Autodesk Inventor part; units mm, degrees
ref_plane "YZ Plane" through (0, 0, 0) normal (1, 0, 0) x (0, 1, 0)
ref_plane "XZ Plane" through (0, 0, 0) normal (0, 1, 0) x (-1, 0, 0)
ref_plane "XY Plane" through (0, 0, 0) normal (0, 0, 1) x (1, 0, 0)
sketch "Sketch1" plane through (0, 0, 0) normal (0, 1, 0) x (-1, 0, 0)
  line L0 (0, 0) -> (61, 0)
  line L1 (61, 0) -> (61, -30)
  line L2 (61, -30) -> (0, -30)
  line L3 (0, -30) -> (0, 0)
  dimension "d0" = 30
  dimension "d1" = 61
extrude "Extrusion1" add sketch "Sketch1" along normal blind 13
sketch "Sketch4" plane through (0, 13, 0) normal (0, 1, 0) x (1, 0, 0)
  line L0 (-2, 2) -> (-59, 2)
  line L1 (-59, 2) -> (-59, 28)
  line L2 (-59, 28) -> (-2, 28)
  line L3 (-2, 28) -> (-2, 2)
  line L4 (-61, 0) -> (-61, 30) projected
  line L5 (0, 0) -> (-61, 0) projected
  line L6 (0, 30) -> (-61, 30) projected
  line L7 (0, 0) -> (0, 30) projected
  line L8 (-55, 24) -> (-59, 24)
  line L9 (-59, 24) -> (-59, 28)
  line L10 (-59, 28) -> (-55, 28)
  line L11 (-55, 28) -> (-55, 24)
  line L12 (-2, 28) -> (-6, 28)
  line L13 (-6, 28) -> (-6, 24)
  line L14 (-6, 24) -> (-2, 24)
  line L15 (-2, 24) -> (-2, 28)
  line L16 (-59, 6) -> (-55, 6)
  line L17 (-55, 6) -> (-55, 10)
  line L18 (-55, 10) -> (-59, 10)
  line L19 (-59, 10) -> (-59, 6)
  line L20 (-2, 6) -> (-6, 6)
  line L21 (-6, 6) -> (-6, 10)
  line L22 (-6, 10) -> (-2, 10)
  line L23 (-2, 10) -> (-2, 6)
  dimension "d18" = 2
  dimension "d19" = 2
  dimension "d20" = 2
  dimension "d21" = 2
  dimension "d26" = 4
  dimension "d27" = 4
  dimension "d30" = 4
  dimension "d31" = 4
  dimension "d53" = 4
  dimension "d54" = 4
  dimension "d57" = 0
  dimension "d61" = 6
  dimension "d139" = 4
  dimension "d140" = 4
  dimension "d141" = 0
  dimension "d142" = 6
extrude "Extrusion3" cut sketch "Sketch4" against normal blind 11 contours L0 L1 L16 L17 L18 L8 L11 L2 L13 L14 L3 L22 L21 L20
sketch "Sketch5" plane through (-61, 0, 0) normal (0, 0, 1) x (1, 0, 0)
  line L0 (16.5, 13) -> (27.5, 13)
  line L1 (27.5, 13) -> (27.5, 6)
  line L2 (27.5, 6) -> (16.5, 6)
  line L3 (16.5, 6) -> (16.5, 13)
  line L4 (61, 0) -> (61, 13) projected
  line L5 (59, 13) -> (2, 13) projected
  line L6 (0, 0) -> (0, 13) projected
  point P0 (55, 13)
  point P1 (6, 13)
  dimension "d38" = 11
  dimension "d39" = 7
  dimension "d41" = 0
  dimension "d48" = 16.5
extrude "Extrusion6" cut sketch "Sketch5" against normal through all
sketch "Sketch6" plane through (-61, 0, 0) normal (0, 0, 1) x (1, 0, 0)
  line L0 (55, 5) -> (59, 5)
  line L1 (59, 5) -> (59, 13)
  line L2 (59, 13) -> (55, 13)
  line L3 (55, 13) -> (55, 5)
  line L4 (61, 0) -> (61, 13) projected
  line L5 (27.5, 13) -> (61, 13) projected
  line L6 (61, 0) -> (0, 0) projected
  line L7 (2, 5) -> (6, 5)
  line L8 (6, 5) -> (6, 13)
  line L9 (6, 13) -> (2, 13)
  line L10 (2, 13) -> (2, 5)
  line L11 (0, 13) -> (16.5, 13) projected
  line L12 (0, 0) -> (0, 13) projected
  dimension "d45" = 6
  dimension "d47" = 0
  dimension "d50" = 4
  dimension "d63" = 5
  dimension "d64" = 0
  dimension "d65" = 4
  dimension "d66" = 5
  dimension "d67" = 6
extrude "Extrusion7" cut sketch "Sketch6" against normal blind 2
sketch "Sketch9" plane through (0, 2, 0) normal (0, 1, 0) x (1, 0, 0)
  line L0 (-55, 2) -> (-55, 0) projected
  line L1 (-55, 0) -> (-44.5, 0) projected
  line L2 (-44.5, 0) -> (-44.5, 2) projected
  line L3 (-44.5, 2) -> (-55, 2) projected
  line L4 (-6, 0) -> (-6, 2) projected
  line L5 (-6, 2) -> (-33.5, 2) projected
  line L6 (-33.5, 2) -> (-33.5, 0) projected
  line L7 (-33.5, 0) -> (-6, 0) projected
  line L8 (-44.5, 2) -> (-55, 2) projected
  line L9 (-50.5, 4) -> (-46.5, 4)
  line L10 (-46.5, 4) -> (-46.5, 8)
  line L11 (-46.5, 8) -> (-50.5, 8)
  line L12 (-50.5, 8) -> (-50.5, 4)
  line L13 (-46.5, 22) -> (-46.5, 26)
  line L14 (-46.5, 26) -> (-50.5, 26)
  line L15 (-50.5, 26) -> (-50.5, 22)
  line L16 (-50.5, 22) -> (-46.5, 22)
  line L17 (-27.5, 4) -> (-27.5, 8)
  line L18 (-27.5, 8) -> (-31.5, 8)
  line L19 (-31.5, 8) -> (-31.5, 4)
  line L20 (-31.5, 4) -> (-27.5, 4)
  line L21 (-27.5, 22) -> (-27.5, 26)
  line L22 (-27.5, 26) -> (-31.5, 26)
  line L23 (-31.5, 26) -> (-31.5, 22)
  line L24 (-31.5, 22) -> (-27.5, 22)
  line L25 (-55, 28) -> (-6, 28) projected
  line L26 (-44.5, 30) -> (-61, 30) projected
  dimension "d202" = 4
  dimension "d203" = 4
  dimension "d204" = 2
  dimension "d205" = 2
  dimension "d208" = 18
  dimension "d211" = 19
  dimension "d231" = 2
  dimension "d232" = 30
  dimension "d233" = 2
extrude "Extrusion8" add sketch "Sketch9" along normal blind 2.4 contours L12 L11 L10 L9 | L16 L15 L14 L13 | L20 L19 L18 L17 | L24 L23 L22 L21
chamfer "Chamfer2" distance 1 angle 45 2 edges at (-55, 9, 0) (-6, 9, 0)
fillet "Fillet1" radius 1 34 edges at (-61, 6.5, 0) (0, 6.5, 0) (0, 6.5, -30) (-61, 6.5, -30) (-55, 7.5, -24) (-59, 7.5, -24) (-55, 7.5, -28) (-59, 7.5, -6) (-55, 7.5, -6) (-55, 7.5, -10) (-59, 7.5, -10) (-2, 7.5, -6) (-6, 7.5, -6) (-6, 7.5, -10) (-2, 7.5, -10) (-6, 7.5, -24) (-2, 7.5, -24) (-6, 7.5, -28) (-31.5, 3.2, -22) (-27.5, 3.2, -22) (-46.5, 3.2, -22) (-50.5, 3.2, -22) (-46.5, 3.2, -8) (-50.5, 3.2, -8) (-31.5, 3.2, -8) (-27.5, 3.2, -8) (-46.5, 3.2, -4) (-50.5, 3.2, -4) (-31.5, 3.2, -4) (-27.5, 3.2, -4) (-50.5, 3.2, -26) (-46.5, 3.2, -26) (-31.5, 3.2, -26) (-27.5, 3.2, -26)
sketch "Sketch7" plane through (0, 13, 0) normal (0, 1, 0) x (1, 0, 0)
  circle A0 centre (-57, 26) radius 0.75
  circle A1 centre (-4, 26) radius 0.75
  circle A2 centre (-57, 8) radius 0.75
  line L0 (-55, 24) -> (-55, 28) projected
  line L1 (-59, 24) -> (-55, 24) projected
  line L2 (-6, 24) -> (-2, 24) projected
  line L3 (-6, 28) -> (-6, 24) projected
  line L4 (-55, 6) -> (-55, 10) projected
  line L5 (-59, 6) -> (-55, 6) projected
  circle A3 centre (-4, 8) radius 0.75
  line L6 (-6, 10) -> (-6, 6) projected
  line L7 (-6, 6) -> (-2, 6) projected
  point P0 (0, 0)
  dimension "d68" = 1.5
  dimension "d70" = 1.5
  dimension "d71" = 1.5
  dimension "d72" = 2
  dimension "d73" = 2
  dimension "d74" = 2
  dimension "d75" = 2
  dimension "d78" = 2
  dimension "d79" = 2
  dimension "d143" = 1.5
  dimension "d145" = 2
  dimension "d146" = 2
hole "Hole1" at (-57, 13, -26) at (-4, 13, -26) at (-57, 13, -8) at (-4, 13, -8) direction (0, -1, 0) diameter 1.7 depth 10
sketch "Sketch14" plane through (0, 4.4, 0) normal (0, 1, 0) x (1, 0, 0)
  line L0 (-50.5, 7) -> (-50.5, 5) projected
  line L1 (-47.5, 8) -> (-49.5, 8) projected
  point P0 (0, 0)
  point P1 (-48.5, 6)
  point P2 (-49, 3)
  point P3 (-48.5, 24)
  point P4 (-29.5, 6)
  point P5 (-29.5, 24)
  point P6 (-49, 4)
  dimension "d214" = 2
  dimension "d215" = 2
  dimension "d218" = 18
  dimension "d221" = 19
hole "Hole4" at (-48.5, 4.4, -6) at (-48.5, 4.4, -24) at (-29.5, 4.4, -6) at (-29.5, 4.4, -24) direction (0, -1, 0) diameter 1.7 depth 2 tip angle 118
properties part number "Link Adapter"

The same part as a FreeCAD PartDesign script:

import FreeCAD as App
import Part
import Sketcher
Q = App.Units.Quantity


def edges_at(feature, points):
    """Names of the edges that pass closest to the given points."""
    edges = feature.Shape.Edges
    near = lambda p: min(range(len(edges)), key=lambda i: edges[i].distToShape(Part.Vertex(*p))[0])
    return sorted({f"Edge{near(p) + 1}" for p in points})


def add_polygon(sketch, points):
    """Adds a closed chain of lines whose ends are joined by coincident constraints."""
    first, n = sketch.GeometryCount, len(points)
    for a, b in zip(points, points[1:] + points[:1]):
        sketch.addGeometry(Part.LineSegment(App.Vector(*a, 0), App.Vector(*b, 0)), False)
    for i in range(n):
        sketch.addConstraint(Sketcher.Constraint("Coincident", first + i, 2, first + (i + 1) % n, 1))

doc = App.newDocument("Part")
body = doc.addObject("PartDesign::Body", "Body")

# Sketch on XZ plane
sketch1 = body.newObject("Sketcher::SketchObject", "Sketch")
sketch1.AttachmentSupport = (doc.getObject("XZ_Plane"), [""])
sketch1.MapMode = "FlatFace"
add_polygon(sketch1, [(-61, 0), (0, 0), (0, -30), (-61, -30)])  # lines 0-3
sketch1.addConstraint(Sketcher.Constraint("Horizontal", 0))
sketch1.addConstraint(Sketcher.Constraint("Vertical", 1))
sketch1.addConstraint(Sketcher.Constraint("Horizontal", 2))
sketch1.addConstraint(Sketcher.Constraint("Vertical", 3))
sketch1.addConstraint(Sketcher.Constraint("Coincident", 0, 2, -1, 1))
sketch1.addConstraint(Sketcher.Constraint("DistanceX", 0, 1, 0, 2, Q("61 mm")))
sketch1.addConstraint(Sketcher.Constraint("DistanceY", 1, 2, 1, 1, Q("30 mm")))
pad1 = body.newObject("PartDesign::Pad", "Pad")
pad1.Profile = sketch1
pad1.Length = 13
pad1.Reversed = True

# Sketch on XZ plane
sketch2 = body.newObject("Sketcher::SketchObject", "Sketch001")
sketch2.AttachmentSupport = (doc.getObject("XZ_Plane"), [""])
sketch2.MapMode = "FlatFace"
sketch2.AttachmentOffset = App.Placement(App.Vector(0, 0, -13), App.Rotation())
add_polygon(sketch2, [(-59, -2), (-2, -2), (-2, -6), (-6, -6), (-6, -10), (-2, -10), (-2, -24), (-6, -24), (-6, -28), (-55, -28), (-55, -24), (-59, -24), (-59, -10), (-55, -10), (-55, -6), (-59, -6)])  # lines 0-15
sketch2.addConstraint(Sketcher.Constraint("Horizontal", 0))
sketch2.addConstraint(Sketcher.Constraint("Vertical", 1))
sketch2.addConstraint(Sketcher.Constraint("Horizontal", 2))
sketch2.addConstraint(Sketcher.Constraint("Vertical", 3))
sketch2.addConstraint(Sketcher.Constraint("Horizontal", 4))
sketch2.addConstraint(Sketcher.Constraint("Vertical", 5))
sketch2.addConstraint(Sketcher.Constraint("Horizontal", 6))
sketch2.addConstraint(Sketcher.Constraint("Vertical", 7))
sketch2.addConstraint(Sketcher.Constraint("Horizontal", 8))
sketch2.addConstraint(Sketcher.Constraint("Vertical", 9))
sketch2.addConstraint(Sketcher.Constraint("Horizontal", 10))
sketch2.addConstraint(Sketcher.Constraint("Vertical", 11))
sketch2.addConstraint(Sketcher.Constraint("Horizontal", 12))
sketch2.addConstraint(Sketcher.Constraint("Vertical", 13))
sketch2.addConstraint(Sketcher.Constraint("Horizontal", 14))
sketch2.addConstraint(Sketcher.Constraint("Vertical", 15))
sketch2.addConstraint(Sketcher.Constraint("Horizontal", 6, 2, 9, 2))
sketch2.addConstraint(Sketcher.Constraint("Horizontal", 4, 2, 11, 2))
sketch2.addConstraint(Sketcher.Constraint("Horizontal", 2, 2, 13, 2))
sketch2.addConstraint(Sketcher.Constraint("Vertical", 1, 2, 4, 2))
sketch2.addConstraint(Sketcher.Constraint("Vertical", 3, 2, 6, 2))
sketch2.addConstraint(Sketcher.Constraint("Vertical", 9, 2, 12, 2))
sketch2.addConstraint(Sketcher.Constraint("Vertical", 11, 2, 14, 2))
sketch2.addConstraint(Sketcher.Constraint("Equal", 6, 10))
sketch2.addConstraint(Sketcher.Constraint("Equal", 14, 1))
sketch2.addConstraint(Sketcher.Constraint("Equal", 1, 3))
sketch2.addConstraint(Sketcher.Constraint("Equal", 3, 7))
sketch2.addConstraint(Sketcher.Constraint("DistanceX", 2, 2, 2, 1, Q("4 mm")))
sketch2.addConstraint(Sketcher.Constraint("DistanceX", 0, 2, -1, 1, Q("2 mm")))
sketch2.addConstraint(Sketcher.Constraint("DistanceY", 0, 2, -1, 1, Q("2 mm")))
sketch2.addConstraint(Sketcher.Constraint("DistanceX", 0, 1, 0, 2, Q("57 mm")))
sketch2.addConstraint(Sketcher.Constraint("DistanceY", 5, 2, 5, 1, Q("14 mm")))
pocket1 = body.newObject("PartDesign::Pocket", "Pocket")
pocket1.Profile = sketch2
pocket1.Length = 11
pocket1.Reversed = True

# Sketch on XY plane
sketch3 = body.newObject("Sketcher::SketchObject", "Sketch002")
sketch3.AttachmentSupport = (doc.getObject("XY_Plane"), [""])
sketch3.MapMode = "FlatFace"
add_polygon(sketch3, [(-33.5, 13), (-44.5, 13), (-44.5, 6), (-33.5, 6)])  # lines 0-3
sketch3.addConstraint(Sketcher.Constraint("Horizontal", 0))
sketch3.addConstraint(Sketcher.Constraint("Vertical", 1))
sketch3.addConstraint(Sketcher.Constraint("Horizontal", 2))
sketch3.addConstraint(Sketcher.Constraint("Vertical", 3))
sketch3.addConstraint(Sketcher.Constraint("DistanceX", 0, 2, 0, 1, Q("11 mm")))
sketch3.addConstraint(Sketcher.Constraint("DistanceY", 1, 2, 1, 1, Q("7 mm")))
sketch3.addConstraint(Sketcher.Constraint("DistanceY", -1, 1, 0, 2, Q("13 mm")))
sketch3.addConstraint(Sketcher.Constraint("DistanceX", 0, 2, -1, 1, Q("44.5 mm")))
pocket2 = body.newObject("PartDesign::Pocket", "Pocket001")
pocket2.Profile = sketch3
pocket2.Type = "ThroughAll"

# Sketch on XY plane
sketch4 = body.newObject("Sketcher::SketchObject", "Sketch003")
sketch4.AttachmentSupport = (doc.getObject("XY_Plane"), [""])
sketch4.MapMode = "FlatFace"
add_polygon(sketch4, [(-6, 13), (-6, 5), (-2, 5), (-2, 13)])  # lines 0-3
add_polygon(sketch4, [(-55, 13), (-59, 13), (-59, 5), (-55, 5)])  # lines 4-7
sketch4.addConstraint(Sketcher.Constraint("Vertical", 0))
sketch4.addConstraint(Sketcher.Constraint("Horizontal", 1))
sketch4.addConstraint(Sketcher.Constraint("Vertical", 2))
sketch4.addConstraint(Sketcher.Constraint("Horizontal", 3))
sketch4.addConstraint(Sketcher.Constraint("Horizontal", 4))
sketch4.addConstraint(Sketcher.Constraint("Vertical", 5))
sketch4.addConstraint(Sketcher.Constraint("Horizontal", 6))
sketch4.addConstraint(Sketcher.Constraint("Vertical", 7))
sketch4.addConstraint(Sketcher.Constraint("Horizontal", 3, 2, 4, 2))
sketch4.addConstraint(Sketcher.Constraint("Horizontal", 1, 2, 5, 2))
sketch4.addConstraint(Sketcher.Constraint("Equal", 3, 4))
sketch4.addConstraint(Sketcher.Constraint("DistanceX", 1, 1, 1, 2, Q("4 mm")))
sketch4.addConstraint(Sketcher.Constraint("DistanceX", 0, 2, -1, 1, Q("6 mm")))
sketch4.addConstraint(Sketcher.Constraint("DistanceY", -1, 1, 0, 2, Q("5 mm")))
sketch4.addConstraint(Sketcher.Constraint("DistanceY", 0, 2, 0, 1, Q("8 mm")))
sketch4.addConstraint(Sketcher.Constraint("DistanceX", 4, 2, -1, 1, Q("59 mm")))
pocket3 = body.newObject("PartDesign::Pocket", "Pocket002")
pocket3.Profile = sketch4
pocket3.Length = 2

# Sketch on XZ plane
sketch5 = body.newObject("Sketcher::SketchObject", "Sketch004")
sketch5.AttachmentSupport = (doc.getObject("XZ_Plane"), [""])
sketch5.MapMode = "FlatFace"
sketch5.AttachmentOffset = App.Placement(App.Vector(0, 0, -2), App.Rotation())
add_polygon(sketch5, [(-50.5, -8), (-50.5, -4), (-46.5, -4), (-46.5, -8)])  # lines 0-3
add_polygon(sketch5, [(-50.5, -22), (-46.5, -22), (-46.5, -26), (-50.5, -26)])  # lines 4-7
add_polygon(sketch5, [(-31.5, -4), (-27.5, -4), (-27.5, -8), (-31.5, -8)])  # lines 8-11
add_polygon(sketch5, [(-31.5, -22), (-27.5, -22), (-27.5, -26), (-31.5, -26)])  # lines 12-15
sketch5.addConstraint(Sketcher.Constraint("Vertical", 0))
sketch5.addConstraint(Sketcher.Constraint("Horizontal", 1))
sketch5.addConstraint(Sketcher.Constraint("Vertical", 2))
sketch5.addConstraint(Sketcher.Constraint("Horizontal", 3))
sketch5.addConstraint(Sketcher.Constraint("Horizontal", 4))
sketch5.addConstraint(Sketcher.Constraint("Vertical", 5))
sketch5.addConstraint(Sketcher.Constraint("Horizontal", 6))
sketch5.addConstraint(Sketcher.Constraint("Vertical", 7))
sketch5.addConstraint(Sketcher.Constraint("Horizontal", 8))
sketch5.addConstraint(Sketcher.Constraint("Vertical", 9))
sketch5.addConstraint(Sketcher.Constraint("Horizontal", 10))
sketch5.addConstraint(Sketcher.Constraint("Vertical", 11))
sketch5.addConstraint(Sketcher.Constraint("Horizontal", 12))
sketch5.addConstraint(Sketcher.Constraint("Vertical", 13))
sketch5.addConstraint(Sketcher.Constraint("Horizontal", 14))
sketch5.addConstraint(Sketcher.Constraint("Vertical", 15))
sketch5.addConstraint(Sketcher.Constraint("Horizontal", 1, 2, 8, 2))
sketch5.addConstraint(Sketcher.Constraint("Horizontal", 3, 2, 9, 2))
sketch5.addConstraint(Sketcher.Constraint("Horizontal", 7, 2, 12, 2))
sketch5.addConstraint(Sketcher.Constraint("Horizontal", 6, 2, 13, 2))
sketch5.addConstraint(Sketcher.Constraint("Vertical", 2, 2, 4, 2))
sketch5.addConstraint(Sketcher.Constraint("Vertical", 3, 2, 6, 2))
sketch5.addConstraint(Sketcher.Constraint("Vertical", 9, 2, 12, 2))
sketch5.addConstraint(Sketcher.Constraint("Vertical", 11, 2, 14, 2))
sketch5.addConstraint(Sketcher.Constraint("Equal", 6, 8))
sketch5.addConstraint(Sketcher.Constraint("Equal", 14, 0))
sketch5.addConstraint(Sketcher.Constraint("Equal", 2, 5))
sketch5.addConstraint(Sketcher.Constraint("DistanceX", 1, 1, 1, 2, Q("4 mm")))
sketch5.addConstraint(Sketcher.Constraint("DistanceY", 0, 2, -1, 1, Q("4 mm")))
sketch5.addConstraint(Sketcher.Constraint("DistanceY", 4, 2, 1, 2, Q("18 mm")))
sketch5.addConstraint(Sketcher.Constraint("DistanceX", 1, 2, 8, 2, Q("19 mm")))
sketch5.addConstraint(Sketcher.Constraint("DistanceX", 0, 2, -1, 1, Q("50.5 mm")))
pad2 = body.newObject("PartDesign::Pad", "Pad001")
pad2.Profile = sketch5
pad2.Length = 2.4
pad2.Reversed = True
doc.recompute()

chamfer = body.newObject("PartDesign::Chamfer", "Chamfer")
chamfer.Base = (pad2, edges_at(pad2, [(-55, 9, 0), (-6, 9, 0)]))
chamfer.Size = 1
doc.recompute()

fillet = body.newObject("PartDesign::Fillet", "Fillet")
fillet.Base = (chamfer, edges_at(chamfer, [
    (-61, 6.5, 0),
    (0, 6.5, 0),
    (0, 6.5, -30),
    (-61, 6.5, -30),
    (-55, 7.5, -24),
    (-59, 7.5, -24),
    (-55, 7.5, -28),
    (-59, 7.5, -6),
    (-55, 7.5, -6),
    (-55, 7.5, -10),
    (-59, 7.5, -10),
    (-2, 7.5, -6),
    (-6, 7.5, -6),
    (-6, 7.5, -10),
    (-2, 7.5, -10),
    (-6, 7.5, -24),
    (-2, 7.5, -24),
    (-6, 7.5, -28),
    (-31.5, 3.2, -22),
    (-27.5, 3.2, -22),
    (-46.5, 3.2, -22),
    (-50.5, 3.2, -22),
    (-46.5, 3.2, -8),
    (-50.5, 3.2, -8),
    (-31.5, 3.2, -8),
    (-27.5, 3.2, -8),
    (-46.5, 3.2, -4),
    (-50.5, 3.2, -4),
    (-31.5, 3.2, -4),
    (-27.5, 3.2, -4),
    (-50.5, 3.2, -26),
    (-46.5, 3.2, -26),
    (-31.5, 3.2, -26),
    (-27.5, 3.2, -26),
]))
fillet.Radius = 1

# Sketch on XZ plane
sketch6 = body.newObject("Sketcher::SketchObject", "Sketch005")
sketch6.AttachmentSupport = (doc.getObject("XZ_Plane"), [""])
sketch6.MapMode = "FlatFace"
sketch6.AttachmentOffset = App.Placement(App.Vector(0, 0, -13), App.Rotation())
sketch6.addGeometry(Part.Circle(App.Vector(-57, -26, 0), App.Vector(0, 0, 1), 0.85), False)
sketch6.addGeometry(Part.Circle(App.Vector(-4, -26, 0), App.Vector(0, 0, 1), 0.85), False)
sketch6.addGeometry(Part.Circle(App.Vector(-57, -8, 0), App.Vector(0, 0, 1), 0.85), False)
sketch6.addGeometry(Part.Circle(App.Vector(-4, -8, 0), App.Vector(0, 0, 1), 0.85), False)
sketch6.addConstraint(Sketcher.Constraint("Equal", 0, 1))
sketch6.addConstraint(Sketcher.Constraint("Equal", 1, 2))
sketch6.addConstraint(Sketcher.Constraint("Equal", 2, 3))
sketch6.addConstraint(Sketcher.Constraint("Horizontal", 0, 3, 1, 3))
sketch6.addConstraint(Sketcher.Constraint("Horizontal", 2, 3, 3, 3))
sketch6.addConstraint(Sketcher.Constraint("Vertical", 0, 3, 2, 3))
sketch6.addConstraint(Sketcher.Constraint("Vertical", 1, 3, 3, 3))
sketch6.addConstraint(Sketcher.Constraint("Diameter", 0, Q("1.7 mm")))
sketch6.addConstraint(Sketcher.Constraint("DistanceX", 0, 3, -1, 1, Q("57 mm")))
sketch6.addConstraint(Sketcher.Constraint("DistanceY", 0, 3, -1, 1, Q("26 mm")))
sketch6.addConstraint(Sketcher.Constraint("DistanceX", 1, 3, -1, 1, Q("4 mm")))
sketch6.addConstraint(Sketcher.Constraint("DistanceY", 2, 3, -1, 1, Q("8 mm")))
doc.recompute()
hole = body.newObject("PartDesign::Hole", "Hole")
hole.Profile = sketch6
hole.ThreadType = "None"
hole.Diameter = 1.7
hole.DepthType = "Dimension"
hole.Depth = 10
hole.DrillPoint = "Flat"
hole.Reversed = True

# Sketch on XZ plane
sketch7 = body.newObject("Sketcher::SketchObject", "Sketch006")
sketch7.AttachmentSupport = (doc.getObject("XZ_Plane"), [""])
sketch7.MapMode = "FlatFace"
sketch7.AttachmentOffset = App.Placement(App.Vector(0, 0, -4.4), App.Rotation())
sketch7.addGeometry(Part.Circle(App.Vector(-48.5, -6, 0), App.Vector(0, 0, 1), 0.85), False)
sketch7.addGeometry(Part.Circle(App.Vector(-48.5, -24, 0), App.Vector(0, 0, 1), 0.85), False)
sketch7.addGeometry(Part.Circle(App.Vector(-29.5, -6, 0), App.Vector(0, 0, 1), 0.85), False)
sketch7.addGeometry(Part.Circle(App.Vector(-29.5, -24, 0), App.Vector(0, 0, 1), 0.85), False)
sketch7.addConstraint(Sketcher.Constraint("Equal", 0, 1))
sketch7.addConstraint(Sketcher.Constraint("Equal", 1, 2))
sketch7.addConstraint(Sketcher.Constraint("Equal", 2, 3))
sketch7.addConstraint(Sketcher.Constraint("Horizontal", 0, 3, 2, 3))
sketch7.addConstraint(Sketcher.Constraint("Horizontal", 1, 3, 3, 3))
sketch7.addConstraint(Sketcher.Constraint("Vertical", 0, 3, 1, 3))
sketch7.addConstraint(Sketcher.Constraint("Vertical", 2, 3, 3, 3))
sketch7.addConstraint(Sketcher.Constraint("Diameter", 0, Q("1.7 mm")))
sketch7.addConstraint(Sketcher.Constraint("DistanceY", 0, 3, -1, 1, Q("6 mm")))
sketch7.addConstraint(Sketcher.Constraint("DistanceY", 1, 3, -1, 1, Q("24 mm")))
sketch7.addConstraint(Sketcher.Constraint("DistanceX", 0, 3, 2, 3, Q("19 mm")))
sketch7.addConstraint(Sketcher.Constraint("DistanceX", 0, 3, -1, 1, Q("48.5 mm")))
doc.recompute()
hole2 = body.newObject("PartDesign::Hole", "Hole001")
hole2.Profile = sketch7
hole2.ThreadType = "None"
hole2.Diameter = 1.7
hole2.DepthType = "Dimension"
hole2.Depth = 2
hole2.DrillPoint = "Angled"
hole2.DrillPointAngle = 118
hole2.Reversed = True

doc.recompute()
